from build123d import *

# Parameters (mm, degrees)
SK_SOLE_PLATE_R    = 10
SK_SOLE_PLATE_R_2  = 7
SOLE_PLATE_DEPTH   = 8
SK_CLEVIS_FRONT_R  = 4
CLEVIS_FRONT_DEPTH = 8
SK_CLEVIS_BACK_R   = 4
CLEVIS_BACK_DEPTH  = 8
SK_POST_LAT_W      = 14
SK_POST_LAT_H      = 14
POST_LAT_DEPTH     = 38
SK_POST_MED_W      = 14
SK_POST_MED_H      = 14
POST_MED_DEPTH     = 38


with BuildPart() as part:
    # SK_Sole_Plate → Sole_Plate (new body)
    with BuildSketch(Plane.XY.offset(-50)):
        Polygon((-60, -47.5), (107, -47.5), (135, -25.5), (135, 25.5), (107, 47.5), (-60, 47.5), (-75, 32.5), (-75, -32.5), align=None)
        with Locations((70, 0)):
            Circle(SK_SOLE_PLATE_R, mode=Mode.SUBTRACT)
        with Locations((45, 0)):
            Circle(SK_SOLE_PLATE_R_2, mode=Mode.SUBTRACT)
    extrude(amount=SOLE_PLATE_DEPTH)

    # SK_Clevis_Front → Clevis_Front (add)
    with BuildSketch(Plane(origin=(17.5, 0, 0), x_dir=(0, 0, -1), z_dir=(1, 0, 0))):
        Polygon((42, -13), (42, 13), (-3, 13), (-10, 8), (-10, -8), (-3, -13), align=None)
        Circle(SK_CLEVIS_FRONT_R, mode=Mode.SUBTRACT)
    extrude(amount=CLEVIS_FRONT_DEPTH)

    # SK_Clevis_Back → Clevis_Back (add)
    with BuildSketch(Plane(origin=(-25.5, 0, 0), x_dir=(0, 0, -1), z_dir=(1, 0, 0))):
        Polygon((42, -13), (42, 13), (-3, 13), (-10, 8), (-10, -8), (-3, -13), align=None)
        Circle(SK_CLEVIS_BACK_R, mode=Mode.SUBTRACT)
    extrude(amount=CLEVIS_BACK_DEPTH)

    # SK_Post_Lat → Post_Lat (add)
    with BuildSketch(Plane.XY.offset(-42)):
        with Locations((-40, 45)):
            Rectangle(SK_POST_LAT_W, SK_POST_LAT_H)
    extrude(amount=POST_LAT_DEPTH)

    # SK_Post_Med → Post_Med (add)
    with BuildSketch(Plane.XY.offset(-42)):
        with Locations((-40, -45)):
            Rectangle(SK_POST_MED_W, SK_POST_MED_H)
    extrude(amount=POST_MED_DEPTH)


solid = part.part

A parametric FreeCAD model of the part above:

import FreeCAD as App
import Part
import Sketcher
from FreeCAD import Vector

doc = App.newDocument("Part")
params = doc.addObject("Spreadsheet::Sheet", "Params")
for row, (alias, value) in enumerate([
    ("sketch1_diameter", "14 mm"),
    ("sketch1_diameter2", "20 mm"),
    ("sketch1_width", "167 mm"),
    ("sketch1_height", "51 mm"),
    ("sketch1_height2", "65 mm"),
    ("pad1_length", "8 mm"),
    ("sketch2_diameter", "8 mm"),
    ("sketch2_width", "26 mm"),
    ("sketch2_width2", "16 mm"),
    ("sketch2_height", "45 mm"),
    ("pad2_length", "8 mm"),
    ("sketch3_diameter", "8 mm"),
    ("sketch3_width", "26 mm"),
    ("sketch3_width2", "16 mm"),
    ("sketch3_height", "45 mm"),
    ("pad3_length", "8 mm"),
    ("sketch4_width", "14 mm"),
    ("pad4_length", "38 mm"),
    ("sketch5_width", "14 mm"),
    ("pad5_length", "38 mm"),
], start=1):
    params.set(f"A{row}", alias)
    params.set(f"B{row}", "=" + value)
    params.setAlias(f"B{row}", alias)

body = doc.addObject("PartDesign::Body", "Body")

sketch1 = doc.addObject("Sketcher::SketchObject", "Sketch")
body.addObject(sketch1)
sketch1.AttachmentSupport = (doc.XY_Plane, [""])
sketch1.MapMode = "FlatFace"
sketch1.AttachmentOffset = App.Placement(Vector(0, 0, -50), App.Rotation())
sketch1.addGeometry([
    Part.LineSegment(Vector(-60, -48, 0), Vector(107, -48, 0)),
    Part.LineSegment(Vector(107, -48, 0), Vector(135, -26, 0)),
    Part.LineSegment(Vector(135, -26, 0), Vector(135, 26, 0)),
    Part.LineSegment(Vector(135, 26, 0), Vector(107, 48, 0)),
    Part.LineSegment(Vector(107, 48, 0), Vector(-60, 48, 0)),
    Part.LineSegment(Vector(-60, 48, 0), Vector(-75, 32, 0)),
    Part.LineSegment(Vector(-75, 32, 0), Vector(-75, -32, 0)),
    Part.LineSegment(Vector(-75, -32, 0), Vector(-60, -48, 0)),
    Part.Circle(Vector(45, 0, 0), Vector(0, 0, 1), 7),
    Part.Circle(Vector(70, 0, 0), Vector(0, 0, 1), 10),
], False)
sketch1.addConstraint([
    Sketcher.Constraint("Coincident", 0, 2, 1, 1),
    Sketcher.Constraint("Coincident", 1, 2, 2, 1),
    Sketcher.Constraint("Coincident", 2, 2, 3, 1),
    Sketcher.Constraint("Coincident", 3, 2, 4, 1),
    Sketcher.Constraint("Coincident", 4, 2, 5, 1),
    Sketcher.Constraint("Coincident", 5, 2, 6, 1),
    Sketcher.Constraint("Coincident", 6, 2, 7, 1),
    Sketcher.Constraint("Coincident", 7, 2, 0, 1),
    Sketcher.Constraint("Horizontal", 0),
    Sketcher.Constraint("Vertical", 2),
    Sketcher.Constraint("Horizontal", 4),
    Sketcher.Constraint("Vertical", 6),
    Sketcher.Constraint("Symmetric", 0, 2, 3, 2, -1),
    Sketcher.Constraint("PointOnObject", 8, 3, -1),
    Sketcher.Constraint("PointOnObject", 9, 3, -1),
    Sketcher.Constraint("Perpendicular", 5, 7),
    Sketcher.Constraint("Vertical", 4, 2, 7, 2),
    Sketcher.Constraint("Equal", 1, 3),
    Sketcher.Constraint("Equal", 5, 7),
    Sketcher.Constraint("Diameter", 8, 14.0),
    Sketcher.Constraint("Diameter", 9, 20.0),
    Sketcher.Constraint("DistanceX", 0, 1, 0, 2, 167.0),
    Sketcher.Constraint("DistanceY", 2, 1, 2, 2, 51.0),
    Sketcher.Constraint("DistanceY", 6, 2, 6, 1, 65.0),
    Sketcher.Constraint("DistanceX", -1, 1, 8, 3, 45.0),
    Sketcher.Constraint("DistanceX", -1, 1, 9, 3, 70.0),
    Sketcher.Constraint("DistanceX", -1, 1, 0, 2, 107.0),
    Sketcher.Constraint("DistanceX", -1, 1, 1, 2, 135.0),
    Sketcher.Constraint("DistanceX", 5, 2, -1, 1, 75.0),
])
sketch1.setExpression("Constraints[19]", "Params.sketch1_diameter")
sketch1.setExpression("Constraints[20]", "Params.sketch1_diameter2")
sketch1.setExpression("Constraints[21]", "Params.sketch1_width")
sketch1.setExpression("Constraints[22]", "Params.sketch1_height")
sketch1.setExpression("Constraints[23]", "Params.sketch1_height2")
pad1 = doc.addObject("PartDesign::Pad", "Pad")
body.addObject(pad1)
pad1.Profile = sketch1
pad1.setExpression("Length", "Params.pad1_length")

sketch2 = doc.addObject("Sketcher::SketchObject", "Sketch001")
body.addObject(sketch2)
sketch2.AttachmentSupport = (doc.YZ_Plane, [""])
sketch2.MapMode = "FlatFace"
sketch2.AttachmentOffset = App.Placement(Vector(0, 0, 17.5), App.Rotation())
sketch2.addGeometry([
    Part.LineSegment(Vector(-13, -42, 0), Vector(13, -42, 0)),
    Part.LineSegment(Vector(13, -42, 0), Vector(13, 3, 0)),
    Part.LineSegment(Vector(13, 3, 0), Vector(8, 10, 0)),
    Part.LineSegment(Vector(8, 10, 0), Vector(-8, 10, 0)),
    Part.LineSegment(Vector(-8, 10, 0), Vector(-13, 3, 0)),
    Part.LineSegment(Vector(-13, 3, 0), Vector(-13, -42, 0)),
    Part.Circle(Vector(0, 0, 0), Vector(0, 0, 1), 4),
], False)
sketch2.addConstraint([
    Sketcher.Constraint("Coincident", 0, 2, 1, 1),
    Sketcher.Constraint("Coincident", 1, 2, 2, 1),
    Sketcher.Constraint("Coincident", 2, 2, 3, 1),
    Sketcher.Constraint("Coincident", 3, 2, 4, 1),
    Sketcher.Constraint("Coincident", 4, 2, 5, 1),
    Sketcher.Constraint("Coincident", 5, 2, 0, 1),
    Sketcher.Constraint("Horizontal", 0),
    Sketcher.Constraint("Vertical", 1),
    Sketcher.Constraint("Horizontal", 3),
    Sketcher.Constraint("Vertical", 5),
    Sketcher.Constraint("Coincident", 6, 3, -1, 1),
    Sketcher.Constraint("Symmetric", 1, 2, 4, 2, -2),
    Sketcher.Constraint("Equal", 2, 4),
    Sketcher.Constraint("Diameter", 6, 8.0),
    Sketcher.Constraint("DistanceX", 0, 1, 0, 2, 26.0),
    Sketcher.Constraint("DistanceX", 3, 2, 3, 1, 16.0),
    Sketcher.Constraint("DistanceY", 1, 1, 1, 2, 45.0),
    Sketcher.Constraint("DistanceY", 0, 2, -1, 1, 42.0),
    Sketcher.Constraint("DistanceY", -1, 1, 2, 2, 10.0),
])
sketch2.setExpression("Constraints[13]", "Params.sketch2_diameter")
sketch2.setExpression("Constraints[14]", "Params.sketch2_width")
sketch2.setExpression("Constraints[15]", "Params.sketch2_width2")
sketch2.setExpression("Constraints[16]", "Params.sketch2_height")
pad2 = doc.addObject("PartDesign::Pad", "Pad001")
body.addObject(pad2)
pad2.Profile = sketch2
pad2.setExpression("Length", "Params.pad2_length")

sketch3 = doc.addObject("Sketcher::SketchObject", "Sketch002")
body.addObject(sketch3)
sketch3.AttachmentSupport = (doc.YZ_Plane, [""])
sketch3.MapMode = "FlatFace"
sketch3.AttachmentOffset = App.Placement(Vector(0, 0, -25.5), App.Rotation())
sketch3.addGeometry([
    Part.LineSegment(Vector(-13, -42, 0), Vector(13, -42, 0)),
    Part.LineSegment(Vector(13, -42, 0), Vector(13, 3, 0)),
    Part.LineSegment(Vector(13, 3, 0), Vector(8, 10, 0)),
    Part.LineSegment(Vector(8, 10, 0), Vector(-8, 10, 0)),
    Part.LineSegment(Vector(-8, 10, 0), Vector(-13, 3, 0)),
    Part.LineSegment(Vector(-13, 3, 0), Vector(-13, -42, 0)),
    Part.Circle(Vector(0, 0, 0), Vector(0, 0, 1), 4),
], False)
sketch3.addConstraint([
    Sketcher.Constraint("Coincident", 0, 2, 1, 1),
    Sketcher.Constraint("Coincident", 1, 2, 2, 1),
    Sketcher.Constraint("Coincident", 2, 2, 3, 1),
    Sketcher.Constraint("Coincident", 3, 2, 4, 1),
    Sketcher.Constraint("Coincident", 4, 2, 5, 1),
    Sketcher.Constraint("Coincident", 5, 2, 0, 1),
    Sketcher.Constraint("Horizontal", 0),
    Sketcher.Constraint("Vertical", 1),
    Sketcher.Constraint("Horizontal", 3),
    Sketcher.Constraint("Vertical", 5),
    Sketcher.Constraint("Coincident", 6, 3, -1, 1),
    Sketcher.Constraint("Symmetric", 1, 2, 4, 2, -2),
    Sketcher.Constraint("Equal", 2, 4),
    Sketcher.Constraint("Diameter", 6, 8.0),
    Sketcher.Constraint("DistanceX", 0, 1, 0, 2, 26.0),
    Sketcher.Constraint("DistanceX", 3, 2, 3, 1, 16.0),
    Sketcher.Constraint("DistanceY", 1, 1, 1, 2, 45.0),
    Sketcher.Constraint("DistanceY", 0, 2, -1, 1, 42.0),
    Sketcher.Constraint("DistanceY", -1, 1, 2, 2, 10.0),
])
sketch3.setExpression("Constraints[13]", "Params.sketch3_diameter")
sketch3.setExpression("Constraints[14]", "Params.sketch3_width")
sketch3.setExpression("Constraints[15]", "Params.sketch3_width2")
sketch3.setExpression("Constraints[16]", "Params.sketch3_height")
pad3 = doc.addObject("PartDesign::Pad", "Pad002")
body.addObject(pad3)
pad3.Profile = sketch3
pad3.setExpression("Length", "Params.pad3_length")

sketch4 = doc.addObject("Sketcher::SketchObject", "Sketch003")
body.addObject(sketch4)
sketch4.AttachmentSupport = (doc.XY_Plane, [""])
sketch4.MapMode = "FlatFace"
sketch4.AttachmentOffset = App.Placement(Vector(0, 0, -42), App.Rotation())
sketch4.addGeometry([
    Part.LineSegment(Vector(-47, 52, 0), Vector(-47, 38, 0)),
    Part.LineSegment(Vector(-47, 38, 0), Vector(-33, 38, 0)),
    Part.LineSegment(Vector(-33, 38, 0), Vector(-33, 52, 0)),
    Part.LineSegment(Vector(-33, 52, 0), Vector(-47, 52, 0)),
], False)
sketch4.addConstraint([
    Sketcher.Constraint("Coincident", 0, 2, 1, 1),
    Sketcher.Constraint("Coincident", 1, 2, 2, 1),
    Sketcher.Constraint("Coincident", 2, 2, 3, 1),
    Sketcher.Constraint("Coincident", 3, 2, 0, 1),
    Sketcher.Constraint("Vertical", 0),
    Sketcher.Constraint("Horizontal", 1),
    Sketcher.Constraint("Vertical", 2),
    Sketcher.Constraint("Horizontal", 3),
    Sketcher.Constraint("Equal", 3, 0),
    Sketcher.Constraint("DistanceX", 1, 1, 1, 2, 14.0),
    Sketcher.Constraint("DistanceX", 0, 2, -1, 1, 47.0),
    Sketcher.Constraint("DistanceY", -1, 1, 0, 2, 38.0),
])
sketch4.setExpression("Constraints[9]", "Params.sketch4_width")
pad4 = doc.addObject("PartDesign::Pad", "Pad003")
body.addObject(pad4)
pad4.Profile = sketch4
pad4.setExpression("Length", "Params.pad4_length")

sketch5 = doc.addObject("Sketcher::SketchObject", "Sketch004")
body.addObject(sketch5)
sketch5.AttachmentSupport = (doc.XY_Plane, [""])
sketch5.MapMode = "FlatFace"
sketch5.AttachmentOffset = App.Placement(Vector(0, 0, -42), App.Rotation())
sketch5.addGeometry([
    Part.LineSegment(Vector(-47, -38, 0), Vector(-47, -52, 0)),
    Part.LineSegment(Vector(-47, -52, 0), Vector(-33, -52, 0)),
    Part.LineSegment(Vector(-33, -52, 0), Vector(-33, -38, 0)),
    Part.LineSegment(Vector(-33, -38, 0), Vector(-47, -38, 0)),
], False)
sketch5.addConstraint([
    Sketcher.Constraint("Coincident", 0, 2, 1, 1),
    Sketcher.Constraint("Coincident", 1, 2, 2, 1),
    Sketcher.Constraint("Coincident", 2, 2, 3, 1),
    Sketcher.Constraint("Coincident", 3, 2, 0, 1),
    Sketcher.Constraint("Vertical", 0),
    Sketcher.Constraint("Horizontal", 1),
    Sketcher.Constraint("Vertical", 2),
    Sketcher.Constraint("Horizontal", 3),
    Sketcher.Constraint("Equal", 3, 0),
    Sketcher.Constraint("DistanceX", 1, 1, 1, 2, 14.0),
    Sketcher.Constraint("DistanceX", 0, 2, -1, 1, 47.0),
    Sketcher.Constraint("DistanceY", 0, 2, -1, 1, 52.0),
])
sketch5.setExpression("Constraints[9]", "Params.sketch5_width")
pad5 = doc.addObject("PartDesign::Pad", "Pad004")
body.addObject(pad5)
pad5.Profile = sketch5
pad5.setExpression("Length", "Params.pad5_length")

doc.recompute()
